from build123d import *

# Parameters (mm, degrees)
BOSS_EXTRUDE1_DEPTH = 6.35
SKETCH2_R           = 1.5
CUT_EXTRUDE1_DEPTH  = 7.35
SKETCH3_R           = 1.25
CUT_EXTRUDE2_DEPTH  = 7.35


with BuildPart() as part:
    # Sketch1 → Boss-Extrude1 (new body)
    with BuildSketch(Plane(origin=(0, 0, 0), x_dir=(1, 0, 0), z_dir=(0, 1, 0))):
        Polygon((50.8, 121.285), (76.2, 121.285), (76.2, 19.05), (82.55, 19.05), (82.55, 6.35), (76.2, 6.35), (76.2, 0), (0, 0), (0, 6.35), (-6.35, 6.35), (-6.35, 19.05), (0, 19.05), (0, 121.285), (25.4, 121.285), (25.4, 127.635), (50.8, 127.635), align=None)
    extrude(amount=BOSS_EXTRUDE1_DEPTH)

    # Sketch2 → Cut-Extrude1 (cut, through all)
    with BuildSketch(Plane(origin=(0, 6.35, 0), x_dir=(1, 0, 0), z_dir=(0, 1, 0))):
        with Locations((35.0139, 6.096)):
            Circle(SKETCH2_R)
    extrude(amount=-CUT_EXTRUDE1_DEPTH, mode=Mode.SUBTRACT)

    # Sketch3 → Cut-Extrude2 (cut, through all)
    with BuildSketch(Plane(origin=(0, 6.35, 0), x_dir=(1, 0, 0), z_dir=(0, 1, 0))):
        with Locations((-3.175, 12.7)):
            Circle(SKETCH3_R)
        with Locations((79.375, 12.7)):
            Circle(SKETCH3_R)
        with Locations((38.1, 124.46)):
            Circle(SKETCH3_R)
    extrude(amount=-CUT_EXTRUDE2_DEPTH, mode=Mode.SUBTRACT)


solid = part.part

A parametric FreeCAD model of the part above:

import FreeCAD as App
import Part
import Sketcher
Q = App.Units.Quantity

doc = App.newDocument("Part")
body = doc.addObject("PartDesign::Body", "Body")

# Sketch on XZ plane
sketch1 = body.newObject("Sketcher::SketchObject", "Sketch")
sketch1.AttachmentSupport = (doc.getObject("XZ_Plane"), [""])
sketch1.MapMode = "FlatFace"
sketch1.addGeometry(Part.LineSegment(App.Vector(76, -121, 0), App.Vector(51, -121, 0)), False)
sketch1.addGeometry(Part.LineSegment(App.Vector(51, -121, 0), App.Vector(51, -128, 0)), False)
sketch1.addGeometry(Part.LineSegment(App.Vector(51, -128, 0), App.Vector(25, -128, 0)), False)
sketch1.addGeometry(Part.LineSegment(App.Vector(25, -128, 0), App.Vector(25, -121, 0)), False)
sketch1.addGeometry(Part.LineSegment(App.Vector(25, -121, 0), App.Vector(0, -121, 0)), False)
sketch1.addGeometry(Part.LineSegment(App.Vector(0, -121, 0), App.Vector(0, -19, 0)), False)
sketch1.addGeometry(Part.LineSegment(App.Vector(0, -19, 0), App.Vector(-6, -19, 0)), False)
sketch1.addGeometry(Part.LineSegment(App.Vector(-6, -19, 0), App.Vector(-6, -6, 0)), False)
sketch1.addGeometry(Part.LineSegment(App.Vector(-6, -6, 0), App.Vector(0, -6, 0)), False)
sketch1.addGeometry(Part.LineSegment(App.Vector(0, -6, 0), App.Vector(0, 0, 0)), False)
sketch1.addGeometry(Part.LineSegment(App.Vector(0, 0, 0), App.Vector(76, 0, 0)), False)
sketch1.addGeometry(Part.LineSegment(App.Vector(76, 0, 0), App.Vector(76, -6, 0)), False)
sketch1.addGeometry(Part.LineSegment(App.Vector(76, -6, 0), App.Vector(83, -6, 0)), False)
sketch1.addGeometry(Part.LineSegment(App.Vector(83, -6, 0), App.Vector(83, -19, 0)), False)
sketch1.addGeometry(Part.LineSegment(App.Vector(83, -19, 0), App.Vector(76, -19, 0)), False)
sketch1.addGeometry(Part.LineSegment(App.Vector(76, -19, 0), App.Vector(76, -121, 0)), False)
sketch1.addConstraint(Sketcher.Constraint("Coincident", 0, 2, 1, 1))
sketch1.addConstraint(Sketcher.Constraint("Coincident", 1, 2, 2, 1))
sketch1.addConstraint(Sketcher.Constraint("Coincident", 2, 2, 3, 1))
sketch1.addConstraint(Sketcher.Constraint("Coincident", 3, 2, 4, 1))
sketch1.addConstraint(Sketcher.Constraint("Coincident", 4, 2, 5, 1))
sketch1.addConstraint(Sketcher.Constraint("Coincident", 5, 2, 6, 1))
sketch1.addConstraint(Sketcher.Constraint("Coincident", 6, 2, 7, 1))
sketch1.addConstraint(Sketcher.Constraint("Coincident", 7, 2, 8, 1))
sketch1.addConstraint(Sketcher.Constraint("Coincident", 8, 2, 9, 1))
sketch1.addConstraint(Sketcher.Constraint("Coincident", 9, 2, 10, 1))
sketch1.addConstraint(Sketcher.Constraint("Coincident", 10, 2, 11, 1))
sketch1.addConstraint(Sketcher.Constraint("Coincident", 11, 2, 12, 1))
sketch1.addConstraint(Sketcher.Constraint("Coincident", 12, 2, 13, 1))
sketch1.addConstraint(Sketcher.Constraint("Coincident", 13, 2, 14, 1))
sketch1.addConstraint(Sketcher.Constraint("Coincident", 14, 2, 15, 1))
sketch1.addConstraint(Sketcher.Constraint("Coincident", 15, 2, 0, 1))
sketch1.addConstraint(Sketcher.Constraint("Horizontal", 0))
sketch1.addConstraint(Sketcher.Constraint("Vertical", 1))
sketch1.addConstraint(Sketcher.Constraint("Horizontal", 2))
sketch1.addConstraint(Sketcher.Constraint("Vertical", 3))
sketch1.addConstraint(Sketcher.Constraint("Horizontal", 4))
sketch1.addConstraint(Sketcher.Constraint("Vertical", 5))
sketch1.addConstraint(Sketcher.Constraint("Horizontal", 6))
sketch1.addConstraint(Sketcher.Constraint("Vertical", 7))
sketch1.addConstraint(Sketcher.Constraint("Horizontal", 8))
sketch1.addConstraint(Sketcher.Constraint("Vertical", 9))
sketch1.addConstraint(Sketcher.Constraint("Horizontal", 10))
sketch1.addConstraint(Sketcher.Constraint("Vertical", 11))
sketch1.addConstraint(Sketcher.Constraint("Horizontal", 12))
sketch1.addConstraint(Sketcher.Constraint("Vertical", 13))
sketch1.addConstraint(Sketcher.Constraint("Horizontal", 14))
sketch1.addConstraint(Sketcher.Constraint("Vertical", 15))
sketch1.addConstraint(Sketcher.Constraint("Coincident", 9, 2, -1, 1))
sketch1.addConstraint(Sketcher.Constraint("PointOnObject", 4, 2, -2))
sketch1.addConstraint(Sketcher.Constraint("Horizontal", 0, 2, 3, 2))
sketch1.addConstraint(Sketcher.Constraint("Horizontal", 8, 2, 11, 2))
sketch1.addConstraint(Sketcher.Constraint("Horizontal", 6, 2, 13, 2))
sketch1.addConstraint(Sketcher.Constraint("Vertical", 11, 2, 14, 2))
sketch1.addConstraint(Sketcher.Constraint("Equal", 0, 2))
sketch1.addConstraint(Sketcher.Constraint("Equal", 2, 4))
sketch1.addConstraint(Sketcher.Constraint("Equal", 8, 12))
sketch1.addConstraint(Sketcher.Constraint("Equal", 14, 1))
sketch1.addConstraint(Sketcher.Constraint("Equal", 3, 9))
sketch1.addConstraint(Sketcher.Constraint("DistanceX", 0, 2, 0, 1, Q("1 in")))
sketch1.addConstraint(Sketcher.Constraint("DistanceY", 7, 1, 7, 2, Q("0.5 in")))
sketch1.addConstraint(Sketcher.Constraint("DistanceX", 6, 2, 6, 1, Q("0.25 in")))
sketch1.addConstraint(Sketcher.Constraint("DistanceY", 5, 1, 5, 2, Q("4.025 in")))
pad1 = body.newObject("PartDesign::Pad", "Pad")
pad1.Profile = sketch1
pad1.Length = Q("0.25 in")
pad1.Reversed = True

# Sketch on XZ plane
sketch2 = body.newObject("Sketcher::SketchObject", "Sketch001")
sketch2.AttachmentSupport = (doc.getObject("XZ_Plane"), [""])
sketch2.MapMode = "FlatFace"
sketch2.AttachmentOffset = App.Placement(App.Vector(0, 0, -0.25 * 25.4), App.Rotation())
sketch2.addGeometry(Part.Circle(App.Vector(35, -6.1, 0), App.Vector(0, 0, 1), 1.5), False)
sketch2.addConstraint(Sketcher.Constraint("Diameter", 0, 3.0))
sketch2.addConstraint(Sketcher.Constraint("DistanceY", 0, 3, -1, 1, Q("0.24 in")))
sketch2.addConstraint(Sketcher.Constraint("DistanceX", -1, 1, 0, 3, Q("1.3785 in")))
pocket1 = body.newObject("PartDesign::Pocket", "Pocket")
pocket1.Profile = sketch2
pocket1.Type = "ThroughAll"
pocket1.Reversed = True

# Sketch on XZ plane
sketch3 = body.newObject("Sketcher::SketchObject", "Sketch002")
sketch3.AttachmentSupport = (doc.getObject("XZ_Plane"), [""])
sketch3.MapMode = "FlatFace"
sketch3.AttachmentOffset = App.Placement(App.Vector(0, 0, -0.25 * 25.4), App.Rotation())
sketch3.addGeometry(Part.Circle(App.Vector(-3.2, -12.7, 0), App.Vector(0, 0, 1), 1.2), False)
sketch3.addGeometry(Part.Circle(App.Vector(79.4, -12.7, 0), App.Vector(0, 0, 1), 1.2), False)
sketch3.addGeometry(Part.Circle(App.Vector(38.1, -124.5, 0), App.Vector(0, 0, 1), 1.2), False)
sketch3.addConstraint(Sketcher.Constraint("Equal", 0, 1))
sketch3.addConstraint(Sketcher.Constraint("Equal", 1, 2))
sketch3.addConstraint(Sketcher.Constraint("Horizontal", 0, 3, 1, 3))
sketch3.addConstraint(Sketcher.Constraint("DistanceY", 0, 3, -1, 1, Q("0.5 in")))
sketch3.addConstraint(Sketcher.Constraint("DistanceX", -1, 1, 2, 3, Q("1.5 in")))
sketch3.addConstraint(Sketcher.Constraint("DistanceY", 2, 3, -1, 1, Q("4.9 in")))
sketch3.addConstraint(Sketcher.Constraint("Diameter", 0, 2.5))
sketch3.addConstraint(Sketcher.Constraint("DistanceX", 0, 3, 1, 3, Q("3.25 in")))
sketch3.addConstraint(Sketcher.Constraint("DistanceX", 0, 3, -1, 1, Q("0.125 in")))
pocket2 = body.newObject("PartDesign::Pocket", "Pocket001")
pocket2.Profile = sketch3
pocket2.Type = "ThroughAll"
pocket2.Reversed = True

doc.recompute()
